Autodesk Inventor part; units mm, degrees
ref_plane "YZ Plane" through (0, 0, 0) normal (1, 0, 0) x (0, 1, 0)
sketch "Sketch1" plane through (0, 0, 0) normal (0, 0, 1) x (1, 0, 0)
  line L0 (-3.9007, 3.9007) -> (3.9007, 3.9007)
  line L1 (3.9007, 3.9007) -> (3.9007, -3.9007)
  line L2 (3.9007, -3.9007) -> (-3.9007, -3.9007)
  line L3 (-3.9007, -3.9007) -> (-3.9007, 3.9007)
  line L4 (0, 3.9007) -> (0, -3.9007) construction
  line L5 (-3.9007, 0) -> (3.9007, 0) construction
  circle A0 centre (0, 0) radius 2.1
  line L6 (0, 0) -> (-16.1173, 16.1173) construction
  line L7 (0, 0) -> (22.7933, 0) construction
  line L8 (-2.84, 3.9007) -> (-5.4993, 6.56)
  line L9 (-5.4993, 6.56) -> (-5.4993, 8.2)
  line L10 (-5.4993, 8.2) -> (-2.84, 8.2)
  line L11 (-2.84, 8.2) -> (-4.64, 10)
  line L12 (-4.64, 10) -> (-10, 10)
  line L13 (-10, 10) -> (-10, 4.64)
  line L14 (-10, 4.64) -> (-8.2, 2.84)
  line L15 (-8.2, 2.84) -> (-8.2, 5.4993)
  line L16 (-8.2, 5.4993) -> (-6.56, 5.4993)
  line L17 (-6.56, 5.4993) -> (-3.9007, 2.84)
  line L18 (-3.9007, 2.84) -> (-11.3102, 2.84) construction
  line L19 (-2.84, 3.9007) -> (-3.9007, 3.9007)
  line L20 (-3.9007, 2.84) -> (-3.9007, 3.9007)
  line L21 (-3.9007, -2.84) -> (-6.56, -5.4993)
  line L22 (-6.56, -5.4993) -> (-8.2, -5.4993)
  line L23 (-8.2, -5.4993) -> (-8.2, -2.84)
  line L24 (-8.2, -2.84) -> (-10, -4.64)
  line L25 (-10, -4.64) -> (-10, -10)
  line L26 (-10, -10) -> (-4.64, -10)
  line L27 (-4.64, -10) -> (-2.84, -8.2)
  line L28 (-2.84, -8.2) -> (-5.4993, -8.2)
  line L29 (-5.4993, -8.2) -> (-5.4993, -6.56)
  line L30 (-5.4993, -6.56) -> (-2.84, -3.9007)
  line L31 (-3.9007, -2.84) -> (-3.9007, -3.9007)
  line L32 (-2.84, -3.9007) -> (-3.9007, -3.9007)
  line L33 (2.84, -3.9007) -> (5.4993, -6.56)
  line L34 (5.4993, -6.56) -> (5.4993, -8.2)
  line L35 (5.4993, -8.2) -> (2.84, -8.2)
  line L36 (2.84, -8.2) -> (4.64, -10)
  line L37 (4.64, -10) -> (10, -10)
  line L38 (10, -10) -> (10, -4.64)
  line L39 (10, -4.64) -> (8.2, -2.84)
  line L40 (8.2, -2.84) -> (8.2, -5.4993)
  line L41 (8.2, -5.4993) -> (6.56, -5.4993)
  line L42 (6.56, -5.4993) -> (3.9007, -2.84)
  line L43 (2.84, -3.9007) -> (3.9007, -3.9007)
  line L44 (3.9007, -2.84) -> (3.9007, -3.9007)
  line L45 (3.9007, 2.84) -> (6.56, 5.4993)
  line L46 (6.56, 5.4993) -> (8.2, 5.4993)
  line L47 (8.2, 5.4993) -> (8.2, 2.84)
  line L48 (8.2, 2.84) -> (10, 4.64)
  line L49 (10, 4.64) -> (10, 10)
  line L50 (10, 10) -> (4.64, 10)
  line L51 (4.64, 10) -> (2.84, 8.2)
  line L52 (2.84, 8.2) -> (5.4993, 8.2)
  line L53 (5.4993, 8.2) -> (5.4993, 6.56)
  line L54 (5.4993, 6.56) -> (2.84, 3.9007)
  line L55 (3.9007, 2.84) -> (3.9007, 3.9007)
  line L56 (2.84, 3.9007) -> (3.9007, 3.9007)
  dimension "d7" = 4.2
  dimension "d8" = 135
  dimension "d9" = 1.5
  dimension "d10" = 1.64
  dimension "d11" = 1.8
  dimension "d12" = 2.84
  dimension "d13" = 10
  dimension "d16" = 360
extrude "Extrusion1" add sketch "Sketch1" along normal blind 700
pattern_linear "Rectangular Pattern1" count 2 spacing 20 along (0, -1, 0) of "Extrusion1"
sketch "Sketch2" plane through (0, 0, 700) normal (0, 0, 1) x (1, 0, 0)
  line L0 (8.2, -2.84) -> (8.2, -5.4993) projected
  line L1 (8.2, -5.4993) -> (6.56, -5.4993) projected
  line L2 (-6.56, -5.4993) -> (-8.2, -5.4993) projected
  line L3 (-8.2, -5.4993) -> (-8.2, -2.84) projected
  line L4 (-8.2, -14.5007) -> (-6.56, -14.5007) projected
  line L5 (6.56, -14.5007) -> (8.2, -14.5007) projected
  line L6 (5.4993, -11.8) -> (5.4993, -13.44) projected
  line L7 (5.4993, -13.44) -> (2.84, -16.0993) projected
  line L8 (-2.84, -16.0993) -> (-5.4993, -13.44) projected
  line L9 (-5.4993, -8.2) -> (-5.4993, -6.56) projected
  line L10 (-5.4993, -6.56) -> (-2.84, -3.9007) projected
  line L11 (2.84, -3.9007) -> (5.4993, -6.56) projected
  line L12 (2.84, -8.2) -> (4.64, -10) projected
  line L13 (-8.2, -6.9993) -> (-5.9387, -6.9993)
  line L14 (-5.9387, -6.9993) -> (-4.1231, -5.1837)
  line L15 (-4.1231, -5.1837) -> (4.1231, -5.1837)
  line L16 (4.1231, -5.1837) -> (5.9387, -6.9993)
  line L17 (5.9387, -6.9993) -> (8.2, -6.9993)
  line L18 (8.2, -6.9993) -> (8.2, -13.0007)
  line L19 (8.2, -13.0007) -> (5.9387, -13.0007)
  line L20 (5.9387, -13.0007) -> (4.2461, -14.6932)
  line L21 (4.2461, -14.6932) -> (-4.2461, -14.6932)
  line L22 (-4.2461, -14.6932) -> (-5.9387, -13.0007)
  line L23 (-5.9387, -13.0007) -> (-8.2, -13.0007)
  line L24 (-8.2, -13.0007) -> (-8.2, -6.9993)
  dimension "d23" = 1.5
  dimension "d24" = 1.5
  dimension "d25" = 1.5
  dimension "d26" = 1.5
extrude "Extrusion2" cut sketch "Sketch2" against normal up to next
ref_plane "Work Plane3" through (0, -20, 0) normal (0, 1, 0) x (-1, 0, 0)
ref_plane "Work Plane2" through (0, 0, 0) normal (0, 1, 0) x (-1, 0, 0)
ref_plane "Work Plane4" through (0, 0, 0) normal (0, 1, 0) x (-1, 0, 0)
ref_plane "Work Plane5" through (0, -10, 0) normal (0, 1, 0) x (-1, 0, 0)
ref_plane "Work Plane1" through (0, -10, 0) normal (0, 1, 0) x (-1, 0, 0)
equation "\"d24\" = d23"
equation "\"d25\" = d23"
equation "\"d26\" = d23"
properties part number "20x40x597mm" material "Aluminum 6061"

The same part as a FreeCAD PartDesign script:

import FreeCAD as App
import Part
import Sketcher
Q = App.Units.Quantity

doc = App.newDocument("Part")
body = doc.addObject("PartDesign::Body", "Body")

# Sketch on XY plane
sketch1 = doc.addObject("Sketcher::SketchObject", "Sketch")
body.addObject(sketch1)
sketch1.AttachmentSupport = (doc.XY_Plane, [""])
sketch1.MapMode = "FlatFace"
sketch1.addGeometry([
    Part.LineSegment(App.Vector(-6.6, 5.5, 0), App.Vector(-3.9, 2.8, 0)),  # 0
    Part.LineSegment(App.Vector(-3.9, 2.8, 0), App.Vector(-3.9, -2.8, 0)),  # 1
    Part.LineSegment(App.Vector(-3.9, -2.8, 0), App.Vector(-6.6, -5.5, 0)),  # 2
    Part.LineSegment(App.Vector(-6.6, -5.5, 0), App.Vector(-8.2, -5.5, 0)),  # 3
    Part.LineSegment(App.Vector(-8.2, -5.5, 0), App.Vector(-8.2, -2.8, 0)),  # 4
    Part.LineSegment(App.Vector(-8.2, -2.8, 0), App.Vector(-10, -4.6, 0)),  # 5
    Part.LineSegment(App.Vector(-10, -4.6, 0), App.Vector(-10, -10, 0)),  # 6
    Part.LineSegment(App.Vector(-10, -10, 0), App.Vector(-4.6, -10, 0)),  # 7
    Part.LineSegment(App.Vector(-4.6, -10, 0), App.Vector(-2.8, -8.2, 0)),  # 8
    Part.LineSegment(App.Vector(-2.8, -8.2, 0), App.Vector(-5.5, -8.2, 0)),  # 9
    Part.LineSegment(App.Vector(-5.5, -8.2, 0), App.Vector(-5.5, -6.6, 0)),  # 10
    Part.LineSegment(App.Vector(-5.5, -6.6, 0), App.Vector(-2.8, -3.9, 0)),  # 11
    Part.LineSegment(App.Vector(-2.8, -3.9, 0), App.Vector(2.8, -3.9, 0)),  # 12
    Part.LineSegment(App.Vector(2.8, -3.9, 0), App.Vector(5.5, -6.6, 0)),  # 13
    Part.LineSegment(App.Vector(5.5, -6.6, 0), App.Vector(5.5, -8.2, 0)),  # 14
    Part.LineSegment(App.Vector(5.5, -8.2, 0), App.Vector(2.8, -8.2, 0)),  # 15
    Part.LineSegment(App.Vector(2.8, -8.2, 0), App.Vector(4.6, -10, 0)),  # 16
    Part.LineSegment(App.Vector(4.6, -10, 0), App.Vector(10, -10, 0)),  # 17
    Part.LineSegment(App.Vector(10, -10, 0), App.Vector(10, -4.6, 0)),  # 18
    Part.LineSegment(App.Vector(10, -4.6, 0), App.Vector(8.2, -2.8, 0)),  # 19
    Part.LineSegment(App.Vector(8.2, -2.8, 0), App.Vector(8.2, -5.5, 0)),  # 20
    Part.LineSegment(App.Vector(8.2, -5.5, 0), App.Vector(6.6, -5.5, 0)),  # 21
    Part.LineSegment(App.Vector(6.6, -5.5, 0), App.Vector(3.9, -2.8, 0)),  # 22
    Part.LineSegment(App.Vector(3.9, -2.8, 0), App.Vector(3.9, 2.8, 0)),  # 23
    Part.LineSegment(App.Vector(3.9, 2.8, 0), App.Vector(6.6, 5.5, 0)),  # 24
    Part.LineSegment(App.Vector(6.6, 5.5, 0), App.Vector(8.2, 5.5, 0)),  # 25
    Part.LineSegment(App.Vector(8.2, 5.5, 0), App.Vector(8.2, 2.8, 0)),  # 26
    Part.LineSegment(App.Vector(8.2, 2.8, 0), App.Vector(10, 4.6, 0)),  # 27
    Part.LineSegment(App.Vector(10, 4.6, 0), App.Vector(10, 10, 0)),  # 28
    Part.LineSegment(App.Vector(10, 10, 0), App.Vector(4.6, 10, 0)),  # 29
    Part.LineSegment(App.Vector(4.6, 10, 0), App.Vector(2.8, 8.2, 0)),  # 30
    Part.LineSegment(App.Vector(2.8, 8.2, 0), App.Vector(5.5, 8.2, 0)),  # 31
    Part.LineSegment(App.Vector(5.5, 8.2, 0), App.Vector(5.5, 6.6, 0)),  # 32
    Part.LineSegment(App.Vector(5.5, 6.6, 0), App.Vector(2.8, 3.9, 0)),  # 33
    Part.LineSegment(App.Vector(2.8, 3.9, 0), App.Vector(-2.8, 3.9, 0)),  # 34
    Part.LineSegment(App.Vector(-2.8, 3.9, 0), App.Vector(-5.5, 6.6, 0)),  # 35
    Part.LineSegment(App.Vector(-5.5, 6.6, 0), App.Vector(-5.5, 8.2, 0)),  # 36
    Part.LineSegment(App.Vector(-5.5, 8.2, 0), App.Vector(-2.8, 8.2, 0)),  # 37
    Part.LineSegment(App.Vector(-2.8, 8.2, 0), App.Vector(-4.6, 10, 0)),  # 38
    Part.LineSegment(App.Vector(-4.6, 10, 0), App.Vector(-10, 10, 0)),  # 39
    Part.LineSegment(App.Vector(-10, 10, 0), App.Vector(-10, 4.6, 0)),  # 40
    Part.LineSegment(App.Vector(-10, 4.6, 0), App.Vector(-8.2, 2.8, 0)),  # 41
    Part.LineSegment(App.Vector(-8.2, 2.8, 0), App.Vector(-8.2, 5.5, 0)),  # 42
    Part.LineSegment(App.Vector(-8.2, 5.5, 0), App.Vector(-6.6, 5.5, 0)),  # 43
    Part.Circle(App.Vector(0, 0, 0), App.Vector(0, 0, 1), 2.1),  # 44
], False)
sketch1.addConstraint([
    Sketcher.Constraint("Coincident", 0, 2, 1, 1),
    Sketcher.Constraint("Coincident", 1, 2, 2, 1),
    Sketcher.Constraint("Coincident", 2, 2, 3, 1),
    Sketcher.Constraint("Coincident", 3, 2, 4, 1),
    Sketcher.Constraint("Coincident", 4, 2, 5, 1),
    Sketcher.Constraint("Coincident", 5, 2, 6, 1),
    Sketcher.Constraint("Coincident", 6, 2, 7, 1),
    Sketcher.Constraint("Coincident", 7, 2, 8, 1),
    Sketcher.Constraint("Coincident", 8, 2, 9, 1),
    Sketcher.Constraint("Coincident", 9, 2, 10, 1),
    Sketcher.Constraint("Coincident", 10, 2, 11, 1),
    Sketcher.Constraint("Coincident", 11, 2, 12, 1),
    Sketcher.Constraint("Coincident", 12, 2, 13, 1),
    Sketcher.Constraint("Coincident", 13, 2, 14, 1),
    Sketcher.Constraint("Coincident", 14, 2, 15, 1),
    Sketcher.Constraint("Coincident", 15, 2, 16, 1),
    Sketcher.Constraint("Coincident", 16, 2, 17, 1),
    Sketcher.Constraint("Coincident", 17, 2, 18, 1),
    Sketcher.Constraint("Coincident", 18, 2, 19, 1),
    Sketcher.Constraint("Coincident", 19, 2, 20, 1),
    Sketcher.Constraint("Coincident", 20, 2, 21, 1),
    Sketcher.Constraint("Coincident", 21, 2, 22, 1),
    Sketcher.Constraint("Coincident", 22, 2, 23, 1),
    Sketcher.Constraint("Coincident", 23, 2, 24, 1),
    Sketcher.Constraint("Coincident", 24, 2, 25, 1),
    Sketcher.Constraint("Coincident", 25, 2, 26, 1),
    Sketcher.Constraint("Coincident", 26, 2, 27, 1),
    Sketcher.Constraint("Coincident", 27, 2, 28, 1),
    Sketcher.Constraint("Coincident", 28, 2, 29, 1),
    Sketcher.Constraint("Coincident", 29, 2, 30, 1),
    Sketcher.Constraint("Coincident", 30, 2, 31, 1),
    Sketcher.Constraint("Coincident", 31, 2, 32, 1),
    Sketcher.Constraint("Coincident", 32, 2, 33, 1),
    Sketcher.Constraint("Coincident", 33, 2, 34, 1),
    Sketcher.Constraint("Coincident", 34, 2, 35, 1),
    Sketcher.Constraint("Coincident", 35, 2, 36, 1),
    Sketcher.Constraint("Coincident", 36, 2, 37, 1),
    Sketcher.Constraint("Coincident", 37, 2, 38, 1),
    Sketcher.Constraint("Coincident", 38, 2, 39, 1),
    Sketcher.Constraint("Coincident", 39, 2, 40, 1),
    Sketcher.Constraint("Coincident", 40, 2, 41, 1),
    Sketcher.Constraint("Coincident", 41, 2, 42, 1),
    Sketcher.Constraint("Coincident", 42, 2, 43, 1),
    Sketcher.Constraint("Coincident", 43, 2, 0, 1),
    Sketcher.Constraint("Vertical", 1),
    Sketcher.Constraint("Horizontal", 3),
    Sketcher.Constraint("Vertical", 4),
    Sketcher.Constraint("Vertical", 6),
    Sketcher.Constraint("Horizontal", 7),
    Sketcher.Constraint("Horizontal", 9),
    Sketcher.Constraint("Vertical", 10),
    Sketcher.Constraint("Horizontal", 12),
    Sketcher.Constraint("Vertical", 14),
    Sketcher.Constraint("Horizontal", 15),
    Sketcher.Constraint("Horizontal", 17),
    Sketcher.Constraint("Vertical", 18),
    Sketcher.Constraint("Vertical", 20),
    Sketcher.Constraint("Horizontal", 21),
    Sketcher.Constraint("Vertical", 23),
    Sketcher.Constraint("Horizontal", 25),
    Sketcher.Constraint("Vertical", 26),
    Sketcher.Constraint("Vertical", 28),
    Sketcher.Constraint("Horizontal", 29),
    Sketcher.Constraint("Horizontal", 31),
    Sketcher.Constraint("Vertical", 32),
    Sketcher.Constraint("Horizontal", 34),
    Sketcher.Constraint("Vertical", 36),
    Sketcher.Constraint("Horizontal", 37),
    Sketcher.Constraint("Horizontal", 39),
    Sketcher.Constraint("Vertical", 40),
    Sketcher.Constraint("Vertical", 42),
    Sketcher.Constraint("Horizontal", 43),
    Sketcher.Constraint("Coincident", 44, 3, -1, 1),
    Sketcher.Constraint("Symmetric", 0, 2, 22, 2, -1, 1),
    Sketcher.Constraint("Symmetric", 2, 2, 24, 2, -1, 1),
    Sketcher.Constraint("Symmetric", 4, 2, 26, 2, -1, 1),
    Sketcher.Constraint("Symmetric", 5, 2, 27, 2, -1, 1),
    Sketcher.Constraint("Symmetric", 7, 2, 29, 2, -1, 1),
    Sketcher.Constraint("Symmetric", 8, 2, 30, 2, -1, 1),
    Sketcher.Constraint("Symmetric", 10, 2, 32, 2, -1, 1),
    Sketcher.Constraint("Symmetric", 11, 2, 33, 2, -1, 1),
    Sketcher.Constraint("Symmetric", 13, 2, 35, 2, -1, 1),
    Sketcher.Constraint("Symmetric", 15, 2, 37, 2, -1, 1),
    Sketcher.Constraint("Symmetric", 16, 2, 38, 2, -1, 1),
    Sketcher.Constraint("Symmetric", 18, 2, 40, 2, -1, 1),
    Sketcher.Constraint("Symmetric", 19, 2, 41, 2, -1, 1),
    Sketcher.Constraint("Symmetric", 21, 2, 43, 2, -1, 1),
    Sketcher.Constraint("Symmetric", 10, 2, 13, 2, -2),
    Sketcher.Constraint("Symmetric", 8, 2, 15, 2, -2),
    Sketcher.Constraint("Symmetric", 7, 2, 16, 2, -2),
    Sketcher.Constraint("Symmetric", 5, 2, 18, 2, -2),
    Sketcher.Constraint("Symmetric", 4, 2, 19, 2, -2),
    Sketcher.Constraint("Symmetric", 2, 2, 21, 2, -2),
    Sketcher.Constraint("Perpendicular", 0, 2),
    Sketcher.Constraint("Parallel", 2, 5),
    Sketcher.Constraint("Parallel", 5, 8),
    Sketcher.Constraint("Parallel", 8, 11),
    Sketcher.Constraint("Perpendicular", 11, 13),
    Sketcher.Constraint("Parallel", 13, 16),
    Sketcher.Constraint("Perpendicular", 22, 24),
    Sketcher.Constraint("Perpendicular", 33, 35),
    Sketcher.Constraint("Horizontal", 1, 2, 4, 2),
    Sketcher.Constraint("Vertical", 8, 2, 11, 2),
    Sketcher.Constraint("Equal", 34, 1),
    Sketcher.Constraint("Equal", 37, 4),
    Sketcher.Constraint("Equal", 39, 6),
    Sketcher.Constraint("Equal", 43, 10),
    Sketcher.Constraint("Equal", 5, 8),
    Sketcher.Constraint("Diameter", 44, Q("4.2 mm")),
    Sketcher.Constraint("DistanceX", 5, 2, -1, 1, Q("10 mm")),
    Sketcher.Constraint("DistanceX", 3, 2, 3, 1, Q("1.64 mm")),
    Sketcher.Constraint("DistanceX", 5, 2, 3, 2, Q("1.8 mm")),
    Sketcher.Constraint("DistanceY", -1, 1, 0, 2, Q("2.84 mm")),
    Sketcher.Constraint("DistanceX", 9, 2, 9, 1, Q("2.6593 mm")),
])
pad1 = doc.addObject("PartDesign::Pad", "Pad")
body.addObject(pad1)
pad1.Profile = sketch1
pad1.Length = 700
doc.recompute()

linearpattern = doc.addObject("PartDesign::LinearPattern", "LinearPattern")
body.addObject(linearpattern)
linearpattern.Originals = [pad1]
linearpattern.Direction = (doc.Y_Axis, [""])
linearpattern.Mode = "offset"
linearpattern.Offset = 20
linearpattern.Occurrences = 2
linearpattern.Reversed = True
body.Tip = linearpattern

# Sketch on XY plane
sketch2 = doc.addObject("Sketcher::SketchObject", "Sketch001")
body.addObject(sketch2)
sketch2.AttachmentSupport = (doc.XY_Plane, [""])
sketch2.MapMode = "FlatFace"
sketch2.AttachmentOffset = App.Placement(App.Vector(0, 0, 700), App.Rotation())
sketch2.addGeometry([
    Part.LineSegment(App.Vector(4.2, -14.7, 0), App.Vector(5.5, -13.4, 0)),  # 0
    Part.LineSegment(App.Vector(5.5, -13.4, 0), App.Vector(5.9, -13, 0)),  # 1
    Part.LineSegment(App.Vector(5.9, -13, 0), App.Vector(8.2, -13, 0)),  # 2
    Part.LineSegment(App.Vector(8.2, -13, 0), App.Vector(8.2, -7, 0)),  # 3
    Part.LineSegment(App.Vector(8.2, -7, 0), App.Vector(5.9, -7, 0)),  # 4
    Part.LineSegment(App.Vector(5.9, -7, 0), App.Vector(5.5, -6.6, 0)),  # 5
    Part.LineSegment(App.Vector(5.5, -6.6, 0), App.Vector(4.1, -5.2, 0)),  # 6
    Part.LineSegment(App.Vector(4.1, -5.2, 0), App.Vector(-4.1, -5.2, 0)),  # 7
    Part.LineSegment(App.Vector(-4.1, -5.2, 0), App.Vector(-5.5, -6.6, 0)),  # 8
    Part.LineSegment(App.Vector(-5.5, -6.6, 0), App.Vector(-5.9, -7, 0)),  # 9
    Part.LineSegment(App.Vector(-5.9, -7, 0), App.Vector(-8.2, -7, 0)),  # 10
    Part.LineSegment(App.Vector(-8.2, -7, 0), App.Vector(-8.2, -13, 0)),  # 11
    Part.LineSegment(App.Vector(-8.2, -13, 0), App.Vector(-5.9, -13, 0)),  # 12
    Part.LineSegment(App.Vector(-5.9, -13, 0), App.Vector(-5.5, -13.4, 0)),  # 13
    Part.LineSegment(App.Vector(-5.5, -13.4, 0), App.Vector(-4.2, -14.7, 0)),  # 14
    Part.LineSegment(App.Vector(-4.2, -14.7, 0), App.Vector(4.2, -14.7, 0)),  # 15
], False)
sketch2.addConstraint([
    Sketcher.Constraint("Coincident", 0, 2, 1, 1),
    Sketcher.Constraint("Coincident", 1, 2, 2, 1),
    Sketcher.Constraint("Coincident", 2, 2, 3, 1),
    Sketcher.Constraint("Coincident", 3, 2, 4, 1),
    Sketcher.Constraint("Coincident", 4, 2, 5, 1),
    Sketcher.Constraint("Coincident", 5, 2, 6, 1),
    Sketcher.Constraint("Coincident", 6, 2, 7, 1),
    Sketcher.Constraint("Coincident", 7, 2, 8, 1),
    Sketcher.Constraint("Coincident", 8, 2, 9, 1),
    Sketcher.Constraint("Coincident", 9, 2, 10, 1),
    Sketcher.Constraint("Coincident", 10, 2, 11, 1),
    Sketcher.Constraint("Coincident", 11, 2, 12, 1),
    Sketcher.Constraint("Coincident", 12, 2, 13, 1),
    Sketcher.Constraint("Coincident", 13, 2, 14, 1),
    Sketcher.Constraint("Coincident", 14, 2, 15, 1),
    Sketcher.Constraint("Coincident", 15, 2, 0, 1),
    Sketcher.Constraint("Horizontal", 2),
    Sketcher.Constraint("Vertical", 3),
    Sketcher.Constraint("Horizontal", 4),
    Sketcher.Constraint("Horizontal", 7),
    Sketcher.Constraint("Horizontal", 10),
    Sketcher.Constraint("Vertical", 11),
    Sketcher.Constraint("Horizontal", 12),
    Sketcher.Constraint("Horizontal", 15),
    Sketcher.Constraint("Symmetric", 5, 2, 8, 2, -2),
    Sketcher.Constraint("Symmetric", 4, 2, 9, 2, -2),
    Sketcher.Constraint("Symmetric", 2, 2, 11, 2, -2),
    Sketcher.Constraint("Symmetric", 0, 2, 13, 2, -2),
    Sketcher.Constraint("Parallel", 0, 1),
    Sketcher.Constraint("Perpendicular", 1, 5),
    Sketcher.Constraint("Parallel", 5, 6),
    Sketcher.Constraint("Perpendicular", 6, 8),
    Sketcher.Constraint("Parallel", 8, 9),
    Sketcher.Constraint("Perpendicular", 9, 13),
    Sketcher.Constraint("Parallel", 13, 14),
    Sketcher.Constraint("Vertical", 1, 2, 4, 2),
    Sketcher.Constraint("Vertical", 0, 2, 5, 2),
    Sketcher.Constraint("DistanceX", -1, 1, 2, 2, Q("8.2 mm")),
    Sketcher.Constraint("DistanceY", 0, 2, -1, 1, Q("13.44 mm")),
    Sketcher.Constraint("DistanceY", 5, 2, -1, 1, Q("6.56 mm")),
    Sketcher.Constraint("DistanceX", 2, 1, 2, 2, Q("2.2613 mm")),
    Sketcher.Constraint("DistanceX", 7, 2, 7, 1, Q("8.2462 mm")),
    Sketcher.Constraint("DistanceX", 15, 1, 15, 2, Q("8.4922 mm")),
    Sketcher.Constraint("DistanceY", 3, 1, 3, 2, Q("6.0014 mm")),
])
pocket1 = doc.addObject("PartDesign::Pocket", "Pocket")
body.addObject(pocket1)
pocket1.Profile = sketch2
pocket1.Length = 700

doc.recompute()
